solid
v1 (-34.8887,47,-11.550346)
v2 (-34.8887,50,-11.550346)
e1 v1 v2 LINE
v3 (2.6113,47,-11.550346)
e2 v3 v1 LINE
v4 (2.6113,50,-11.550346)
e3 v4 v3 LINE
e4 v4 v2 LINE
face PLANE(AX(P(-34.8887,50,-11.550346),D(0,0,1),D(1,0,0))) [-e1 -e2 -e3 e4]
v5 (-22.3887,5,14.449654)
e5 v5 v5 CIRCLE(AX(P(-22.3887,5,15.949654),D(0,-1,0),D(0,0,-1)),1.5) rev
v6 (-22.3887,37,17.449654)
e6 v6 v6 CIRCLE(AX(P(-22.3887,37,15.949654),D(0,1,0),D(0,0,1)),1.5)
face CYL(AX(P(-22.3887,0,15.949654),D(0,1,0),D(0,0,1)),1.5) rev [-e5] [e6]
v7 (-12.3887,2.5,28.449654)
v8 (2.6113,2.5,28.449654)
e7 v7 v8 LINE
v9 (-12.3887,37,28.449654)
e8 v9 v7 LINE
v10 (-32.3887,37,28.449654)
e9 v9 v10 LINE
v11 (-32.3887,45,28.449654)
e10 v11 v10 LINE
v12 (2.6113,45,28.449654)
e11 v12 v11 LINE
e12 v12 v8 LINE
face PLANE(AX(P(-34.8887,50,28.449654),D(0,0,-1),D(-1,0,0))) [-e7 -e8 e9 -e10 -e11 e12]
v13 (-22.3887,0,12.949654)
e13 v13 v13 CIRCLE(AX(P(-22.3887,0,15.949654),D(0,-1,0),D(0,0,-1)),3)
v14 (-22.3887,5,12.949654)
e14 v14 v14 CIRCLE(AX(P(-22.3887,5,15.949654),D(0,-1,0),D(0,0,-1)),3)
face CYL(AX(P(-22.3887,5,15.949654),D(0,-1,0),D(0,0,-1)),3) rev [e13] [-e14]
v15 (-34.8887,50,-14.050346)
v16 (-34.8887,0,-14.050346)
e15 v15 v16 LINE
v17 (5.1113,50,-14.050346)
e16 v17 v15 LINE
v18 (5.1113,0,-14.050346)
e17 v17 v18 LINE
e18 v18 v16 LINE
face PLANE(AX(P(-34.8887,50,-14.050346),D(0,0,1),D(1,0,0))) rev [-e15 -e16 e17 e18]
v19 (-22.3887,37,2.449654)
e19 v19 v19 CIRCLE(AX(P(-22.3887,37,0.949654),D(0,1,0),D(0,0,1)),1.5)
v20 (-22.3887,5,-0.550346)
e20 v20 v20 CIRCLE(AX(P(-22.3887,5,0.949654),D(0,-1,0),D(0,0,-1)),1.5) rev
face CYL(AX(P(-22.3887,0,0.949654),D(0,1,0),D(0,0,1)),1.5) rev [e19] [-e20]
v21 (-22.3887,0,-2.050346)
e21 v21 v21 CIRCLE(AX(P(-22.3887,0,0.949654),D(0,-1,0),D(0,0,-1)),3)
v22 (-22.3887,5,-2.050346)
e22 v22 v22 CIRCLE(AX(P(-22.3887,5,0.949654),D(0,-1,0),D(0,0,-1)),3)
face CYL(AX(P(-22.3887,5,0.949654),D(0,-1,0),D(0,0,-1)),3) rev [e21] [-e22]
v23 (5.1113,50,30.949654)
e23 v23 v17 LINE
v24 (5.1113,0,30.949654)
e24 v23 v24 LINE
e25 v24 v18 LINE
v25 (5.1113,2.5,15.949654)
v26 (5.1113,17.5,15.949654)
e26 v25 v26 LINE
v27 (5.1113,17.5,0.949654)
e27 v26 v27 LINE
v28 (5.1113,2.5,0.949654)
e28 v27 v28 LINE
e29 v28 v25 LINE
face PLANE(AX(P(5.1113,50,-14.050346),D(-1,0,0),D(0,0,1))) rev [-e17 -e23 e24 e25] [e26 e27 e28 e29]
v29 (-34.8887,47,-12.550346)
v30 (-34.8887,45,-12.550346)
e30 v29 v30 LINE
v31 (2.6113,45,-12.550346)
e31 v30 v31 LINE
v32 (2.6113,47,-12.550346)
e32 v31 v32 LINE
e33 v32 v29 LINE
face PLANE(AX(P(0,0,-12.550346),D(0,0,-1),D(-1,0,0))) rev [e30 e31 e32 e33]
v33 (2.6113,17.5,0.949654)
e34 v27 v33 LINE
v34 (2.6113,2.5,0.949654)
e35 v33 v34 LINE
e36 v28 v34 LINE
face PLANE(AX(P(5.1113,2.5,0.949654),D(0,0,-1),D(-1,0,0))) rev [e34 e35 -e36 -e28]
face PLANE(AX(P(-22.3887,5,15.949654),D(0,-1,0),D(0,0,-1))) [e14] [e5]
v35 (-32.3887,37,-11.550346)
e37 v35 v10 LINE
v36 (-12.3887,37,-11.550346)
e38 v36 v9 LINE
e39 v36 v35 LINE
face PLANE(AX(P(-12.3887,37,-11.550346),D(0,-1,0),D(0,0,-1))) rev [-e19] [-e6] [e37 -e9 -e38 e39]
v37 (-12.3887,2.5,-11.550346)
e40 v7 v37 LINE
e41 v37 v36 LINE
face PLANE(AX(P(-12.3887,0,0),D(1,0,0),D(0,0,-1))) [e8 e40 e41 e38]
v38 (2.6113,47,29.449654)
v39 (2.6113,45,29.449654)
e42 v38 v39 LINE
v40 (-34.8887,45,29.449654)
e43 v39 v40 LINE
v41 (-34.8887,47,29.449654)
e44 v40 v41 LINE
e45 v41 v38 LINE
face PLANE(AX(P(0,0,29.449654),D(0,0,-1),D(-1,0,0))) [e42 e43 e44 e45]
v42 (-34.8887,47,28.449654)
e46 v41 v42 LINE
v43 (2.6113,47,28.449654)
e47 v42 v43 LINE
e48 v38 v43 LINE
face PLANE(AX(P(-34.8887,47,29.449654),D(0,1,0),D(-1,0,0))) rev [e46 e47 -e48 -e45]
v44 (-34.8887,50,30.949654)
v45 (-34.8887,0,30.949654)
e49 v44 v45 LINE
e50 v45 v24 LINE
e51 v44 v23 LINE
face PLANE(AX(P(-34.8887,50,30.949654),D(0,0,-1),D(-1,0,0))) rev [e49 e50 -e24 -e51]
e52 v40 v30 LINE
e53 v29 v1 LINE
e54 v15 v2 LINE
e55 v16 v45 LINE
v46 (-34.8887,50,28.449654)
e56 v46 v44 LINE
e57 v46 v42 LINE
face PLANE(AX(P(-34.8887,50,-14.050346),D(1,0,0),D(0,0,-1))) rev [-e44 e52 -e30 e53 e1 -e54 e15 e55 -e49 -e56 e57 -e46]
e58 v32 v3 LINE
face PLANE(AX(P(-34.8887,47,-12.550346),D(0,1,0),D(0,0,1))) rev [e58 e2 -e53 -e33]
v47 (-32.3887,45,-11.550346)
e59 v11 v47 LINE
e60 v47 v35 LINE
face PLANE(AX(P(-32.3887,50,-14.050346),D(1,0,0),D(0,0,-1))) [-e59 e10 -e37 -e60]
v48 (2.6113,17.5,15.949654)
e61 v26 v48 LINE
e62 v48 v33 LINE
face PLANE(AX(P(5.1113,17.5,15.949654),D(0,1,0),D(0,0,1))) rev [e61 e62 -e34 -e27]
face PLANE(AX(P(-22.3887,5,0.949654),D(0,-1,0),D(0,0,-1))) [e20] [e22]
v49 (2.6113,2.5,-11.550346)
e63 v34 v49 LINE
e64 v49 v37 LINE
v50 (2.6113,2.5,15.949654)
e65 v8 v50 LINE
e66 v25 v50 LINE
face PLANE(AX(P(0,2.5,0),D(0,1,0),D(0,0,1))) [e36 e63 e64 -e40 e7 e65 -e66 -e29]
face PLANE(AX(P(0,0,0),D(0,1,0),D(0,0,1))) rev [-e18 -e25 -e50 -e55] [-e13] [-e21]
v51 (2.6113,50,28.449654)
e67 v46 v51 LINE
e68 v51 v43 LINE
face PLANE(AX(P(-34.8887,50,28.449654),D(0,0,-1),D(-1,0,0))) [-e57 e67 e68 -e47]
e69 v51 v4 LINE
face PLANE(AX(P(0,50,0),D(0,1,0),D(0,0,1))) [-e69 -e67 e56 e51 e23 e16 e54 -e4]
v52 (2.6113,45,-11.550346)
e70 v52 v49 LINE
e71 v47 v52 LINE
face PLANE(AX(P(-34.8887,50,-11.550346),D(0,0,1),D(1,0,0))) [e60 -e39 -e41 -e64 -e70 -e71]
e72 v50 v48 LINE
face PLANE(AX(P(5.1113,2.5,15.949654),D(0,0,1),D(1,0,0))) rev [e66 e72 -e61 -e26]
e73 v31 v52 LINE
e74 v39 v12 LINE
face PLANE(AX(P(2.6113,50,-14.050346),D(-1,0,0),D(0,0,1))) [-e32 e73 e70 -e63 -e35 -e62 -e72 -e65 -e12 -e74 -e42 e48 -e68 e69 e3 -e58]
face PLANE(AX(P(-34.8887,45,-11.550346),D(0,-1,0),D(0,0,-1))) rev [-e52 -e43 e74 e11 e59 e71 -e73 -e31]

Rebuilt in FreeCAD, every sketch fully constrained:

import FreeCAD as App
import Part
import Sketcher

V = App.Vector
Q = App.Units.Quantity


def faces_at(feature, points):
    """Names of the faces that lie closest to the given points."""
    faces = feature.Shape.Faces
    near = lambda p: min(range(len(faces)), key=lambda i: faces[i].distToShape(Part.Vertex(*p))[0])
    return sorted({f"Face{near(p) + 1}" for p in points})

doc = App.newDocument("Part")
body = doc.addObject("PartDesign::Body", "Body")

sketch1 = body.newObject("Sketcher::SketchObject", "Sketch")
sketch1.AttachmentSupport = (doc.getObject("XZ_Plane"), [""])
sketch1.MapMode = "FlatFace"
sketch1.addGeometry(Part.LineSegment(V(-35, -14, 0), V(-35, 31, 0)), False)
sketch1.addGeometry(Part.LineSegment(V(-35, 31, 0), V(5, 31, 0)), False)
sketch1.addGeometry(Part.LineSegment(V(5, 31, 0), V(5, -14, 0)), False)
sketch1.addGeometry(Part.LineSegment(V(5, -14, 0), V(-35, -14, 0)), False)
sketch1.addConstraint(Sketcher.Constraint("Coincident", 0, 2, 1, 1))
sketch1.addConstraint(Sketcher.Constraint("Coincident", 1, 2, 2, 1))
sketch1.addConstraint(Sketcher.Constraint("Coincident", 2, 2, 3, 1))
sketch1.addConstraint(Sketcher.Constraint("Coincident", 3, 2, 0, 1))
sketch1.addConstraint(Sketcher.Constraint("Vertical", 0))
sketch1.addConstraint(Sketcher.Constraint("Horizontal", 1))
sketch1.addConstraint(Sketcher.Constraint("Vertical", 2))
sketch1.addConstraint(Sketcher.Constraint("Horizontal", 3))
sketch1.addConstraint(Sketcher.Constraint("DistanceX", 1, 1, 1, 2, Q("40 mm")))
sketch1.addConstraint(Sketcher.Constraint("DistanceY", 0, 1, 0, 2, Q("45 mm")))
sketch1.addConstraint(Sketcher.Constraint("DistanceX", 0, 2, -1, 1, Q("34.8887 mm")))
sketch1.addConstraint(Sketcher.Constraint("DistanceY", -1, 1, 0, 2, Q("30.949654 mm")))
pad1 = body.newObject("PartDesign::Pad", "Pad")
pad1.Profile = sketch1
pad1.Length = 50
pad1.Reversed = True
doc.recompute()

thickness = body.newObject("PartDesign::Thickness", "Thickness")
thickness.Base = (pad1, faces_at(pad1, [(-14.889, 50, 8.45)]))
thickness.Value = 2.5
thickness.Reversed = True
thickness.Join = "Intersection"

sketch2 = body.newObject("Sketcher::SketchObject", "Sketch001")
sketch2.AttachmentSupport = (doc.getObject("YZ_Plane"), [""])
sketch2.MapMode = "FlatFace"
sketch2.AttachmentOffset = App.Placement(V(0, 0, -32.3887), App.Rotation())
sketch2.addGeometry(Part.LineSegment(V(37, 28, 0), V(2, 28, 0)), False)
sketch2.addGeometry(Part.LineSegment(V(2, 28, 0), V(2, -12, 0)), False)
sketch2.addGeometry(Part.LineSegment(V(2, -12, 0), V(37, -12, 0)), False)
sketch2.addGeometry(Part.LineSegment(V(37, -12, 0), V(37, 28, 0)), False)
sketch2.addConstraint(Sketcher.Constraint("Coincident", 0, 2, 1, 1))
sketch2.addConstraint(Sketcher.Constraint("Coincident", 1, 2, 2, 1))
sketch2.addConstraint(Sketcher.Constraint("Coincident", 2, 2, 3, 1))
sketch2.addConstraint(Sketcher.Constraint("Coincident", 3, 2, 0, 1))
sketch2.addConstraint(Sketcher.Constraint("Horizontal", 0))
sketch2.addConstraint(Sketcher.Constraint("Vertical", 1))
sketch2.addConstraint(Sketcher.Constraint("Horizontal", 2))
sketch2.addConstraint(Sketcher.Constraint("Vertical", 3))
sketch2.addConstraint(Sketcher.Constraint("DistanceY", 1, 2, 1, 1, Q("40 mm")))
sketch2.addConstraint(Sketcher.Constraint("DistanceX", 0, 2, 0, 1, Q("34.5 mm")))
sketch2.addConstraint(Sketcher.Constraint("DistanceX", -1, 1, 2, 2, Q("37 mm")))
sketch2.addConstraint(Sketcher.Constraint("DistanceY", -1, 1, 0, 2, Q("28.449654 mm")))
pad2 = body.newObject("PartDesign::Pad", "Pad001")
pad2.Profile = sketch2
pad2.Length = 20

sketch3 = body.newObject("Sketcher::SketchObject", "Sketch002")
sketch3.AttachmentSupport = (doc.getObject("YZ_Plane"), [""])
sketch3.MapMode = "FlatFace"
sketch3.AttachmentOffset = App.Placement(V(0, 0, -32.3887), App.Rotation())
sketch3.addGeometry(Part.LineSegment(V(50, 28, 0), V(45, 28, 0)), False)
sketch3.addGeometry(Part.LineSegment(V(45, 28, 0), V(45, -12, 0)), False)
sketch3.addGeometry(Part.LineSegment(V(45, -12, 0), V(50, -12, 0)), False)
sketch3.addGeometry(Part.LineSegment(V(50, -12, 0), V(50, 28, 0)), False)
sketch3.addConstraint(Sketcher.Constraint("Coincident", 0, 2, 1, 1))
sketch3.addConstraint(Sketcher.Constraint("Coincident", 1, 2, 2, 1))
sketch3.addConstraint(Sketcher.Constraint("Coincident", 2, 2, 3, 1))
sketch3.addConstraint(Sketcher.Constraint("Coincident", 3, 2, 0, 1))
sketch3.addConstraint(Sketcher.Constraint("Horizontal", 0))
sketch3.addConstraint(Sketcher.Constraint("Vertical", 1))
sketch3.addConstraint(Sketcher.Constraint("Horizontal", 2))
sketch3.addConstraint(Sketcher.Constraint("Vertical", 3))
sketch3.addConstraint(Sketcher.Constraint("DistanceX", 0, 2, 0, 1, Q("5 mm")))
sketch3.addConstraint(Sketcher.Constraint("DistanceY", 1, 2, 1, 1, Q("40 mm")))
sketch3.addConstraint(Sketcher.Constraint("DistanceX", -1, 1, 0, 2, Q("45 mm")))
sketch3.addConstraint(Sketcher.Constraint("DistanceY", -1, 1, 0, 2, Q("28.449654 mm")))
pocket1 = body.newObject("PartDesign::Pocket", "Pocket")
pocket1.Profile = sketch3
pocket1.Length = 2.5

sketch4 = body.newObject("Sketcher::SketchObject", "Sketch003")
sketch4.AttachmentSupport = (doc.getObject("XY_Plane"), [""])
sketch4.MapMode = "FlatFace"
sketch4.AttachmentOffset = App.Placement(V(0, 0, -11.550346), App.Rotation())
sketch4.addGeometry(Part.LineSegment(V(-34.9, 47, 0), V(-34.9, 45, 0)), False)
sketch4.addGeometry(Part.LineSegment(V(-34.9, 45, 0), V(2.6, 45, 0)), False)
sketch4.addGeometry(Part.LineSegment(V(2.6, 45, 0), V(2.6, 47, 0)), False)
sketch4.addGeometry(Part.LineSegment(V(2.6, 47, 0), V(-34.9, 47, 0)), False)
sketch4.addConstraint(Sketcher.Constraint("Coincident", 0, 2, 1, 1))
sketch4.addConstraint(Sketcher.Constraint("Coincident", 1, 2, 2, 1))
sketch4.addConstraint(Sketcher.Constraint("Coincident", 2, 2, 3, 1))
sketch4.addConstraint(Sketcher.Constraint("Coincident", 3, 2, 0, 1))
sketch4.addConstraint(Sketcher.Constraint("Vertical", 0))
sketch4.addConstraint(Sketcher.Constraint("Horizontal", 1))
sketch4.addConstraint(Sketcher.Constraint("Vertical", 2))
sketch4.addConstraint(Sketcher.Constraint("Horizontal", 3))
sketch4.addConstraint(Sketcher.Constraint("DistanceY", 0, 2, 0, 1, Q("2 mm")))
sketch4.addConstraint(Sketcher.Constraint("DistanceX", 1, 1, 1, 2, Q("37.5 mm")))
sketch4.addConstraint(Sketcher.Constraint("DistanceY", -1, 1, 0, 2, Q("45 mm")))
sketch4.addConstraint(Sketcher.Constraint("DistanceX", 0, 2, -1, 1, Q("34.8887 mm")))
pocket2 = body.newObject("PartDesign::Pocket", "Pocket001")
pocket2.Profile = sketch4
pocket2.Length = 1

sketch5 = body.newObject("Sketcher::SketchObject", "Sketch004")
sketch5.AttachmentSupport = (doc.getObject("XY_Plane"), [""])
sketch5.MapMode = "FlatFace"
sketch5.AttachmentOffset = App.Placement(V(0, 0, 28.449654), App.Rotation())
sketch5.addGeometry(Part.LineSegment(V(2.6, 47, 0), V(2.6, 45, 0)), False)
sketch5.addGeometry(Part.LineSegment(V(2.6, 45, 0), V(-34.9, 45, 0)), False)
sketch5.addGeometry(Part.LineSegment(V(-34.9, 45, 0), V(-34.9, 47, 0)), False)
sketch5.addGeometry(Part.LineSegment(V(-34.9, 47, 0), V(2.6, 47, 0)), False)
sketch5.addConstraint(Sketcher.Constraint("Coincident", 0, 2, 1, 1))
sketch5.addConstraint(Sketcher.Constraint("Coincident", 1, 2, 2, 1))
sketch5.addConstraint(Sketcher.Constraint("Coincident", 2, 2, 3, 1))
sketch5.addConstraint(Sketcher.Constraint("Coincident", 3, 2, 0, 1))
sketch5.addConstraint(Sketcher.Constraint("Vertical", 0))
sketch5.addConstraint(Sketcher.Constraint("Horizontal", 1))
sketch5.addConstraint(Sketcher.Constraint("Vertical", 2))
sketch5.addConstraint(Sketcher.Constraint("Horizontal", 3))
sketch5.addConstraint(Sketcher.Constraint("DistanceY", 0, 2, 0, 1, Q("2 mm")))
sketch5.addConstraint(Sketcher.Constraint("DistanceX", 1, 2, 1, 1, Q("37.5 mm")))
sketch5.addConstraint(Sketcher.Constraint("DistanceY", -1, 1, 0, 2, Q("45 mm")))
sketch5.addConstraint(Sketcher.Constraint("DistanceX", -1, 1, 0, 2, Q("2.6113 mm")))
pocket3 = body.newObject("PartDesign::Pocket", "Pocket002")
pocket3.Profile = sketch5
pocket3.Length = 1
pocket3.Reversed = True

sketch6 = body.newObject("Sketcher::SketchObject", "Sketch005")
sketch6.AttachmentSupport = (doc.getObject("XZ_Plane"), [""])
sketch6.MapMode = "FlatFace"
sketch6.AttachmentOffset = App.Placement(V(0, 0, -37), App.Rotation())
sketch6.addGeometry(Part.Circle(V(-22.4, 15.9, 0), V(0, 0, 1), 1.5), False)
sketch6.addConstraint(Sketcher.Constraint("Diameter", 0, Q("3 mm")))
sketch6.addConstraint(Sketcher.Constraint("DistanceX", 0, 3, -1, 1, Q("22.3887 mm")))
sketch6.addConstraint(Sketcher.Constraint("DistanceY", -1, 1, 0, 3, Q("15.949654 mm")))
pocket4 = body.newObject("PartDesign::Pocket", "Pocket003")
pocket4.Profile = sketch6
pocket4.Length = 37
pocket4.Reversed = True

sketch7 = body.newObject("Sketcher::SketchObject", "Sketch006")
sketch7.AttachmentSupport = (doc.getObject("XZ_Plane"), [""])
sketch7.MapMode = "FlatFace"
sketch7.AttachmentOffset = App.Placement(V(0, 0, -37), App.Rotation())
sketch7.addGeometry(Part.Circle(V(-22.4, 0.9, 0), V(0, 0, 1), 1.5), False)
sketch7.addConstraint(Sketcher.Constraint("Diameter", 0, Q("3 mm")))
sketch7.addConstraint(Sketcher.Constraint("DistanceX", 0, 3, -1, 1, Q("22.3887 mm")))
sketch7.addConstraint(Sketcher.Constraint("DistanceY", -1, 1, 0, 3, Q("0.949654 mm")))
pocket5 = body.newObject("PartDesign::Pocket", "Pocket004")
pocket5.Profile = sketch7
pocket5.Length = 37
pocket5.Reversed = True

sketch8 = body.newObject("Sketcher::SketchObject", "Sketch007")
sketch8.AttachmentSupport = (doc.getObject("XZ_Plane"), [""])
sketch8.MapMode = "FlatFace"
sketch8.addGeometry(Part.Circle(V(-22.4, 15.9, 0), V(0, 0, 1), 3), False)
sketch8.addGeometry(Part.Circle(V(-22.4, 0.9, 0), V(0, 0, 1), 3), False)
sketch8.addConstraint(Sketcher.Constraint("Equal", 0, 1))
sketch8.addConstraint(Sketcher.Constraint("Vertical", 0, 3, 1, 3))
sketch8.addConstraint(Sketcher.Constraint("Diameter", 0, Q("6 mm")))
sketch8.addConstraint(Sketcher.Constraint("DistanceY", 1, 3, 0, 3, Q("15 mm")))
sketch8.addConstraint(Sketcher.Constraint("DistanceX", 0, 3, -1, 1, Q("22.3887 mm")))
sketch8.addConstraint(Sketcher.Constraint("DistanceY", -1, 1, 0, 3, Q("15.949654 mm")))
pocket6 = body.newObject("PartDesign::Pocket", "Pocket005")
pocket6.Profile = sketch8
pocket6.Length = 5

sketch9 = body.newObject("Sketcher::SketchObject", "Sketch008")
sketch9.AttachmentSupport = (doc.getObject("YZ_Plane"), [""])
sketch9.MapMode = "FlatFace"
sketch9.AttachmentOffset = App.Placement(V(0, 0, 2.6113), App.Rotation())
sketch9.addGeometry(Part.LineSegment(V(18, 1, 0), V(2, 1, 0)), False)
sketch9.addGeometry(Part.LineSegment(V(2, 1, 0), V(2, 16, 0)), False)
sketch9.addGeometry(Part.LineSegment(V(2, 16, 0), V(18, 16, 0)), False)
sketch9.addGeometry(Part.LineSegment(V(18, 16, 0), V(18, 1, 0)), False)
sketch9.addConstraint(Sketcher.Constraint("Coincident", 0, 2, 1, 1))
sketch9.addConstraint(Sketcher.Constraint("Coincident", 1, 2, 2, 1))
sketch9.addConstraint(Sketcher.Constraint("Coincident", 2, 2, 3, 1))
sketch9.addConstraint(Sketcher.Constraint("Coincident", 3, 2, 0, 1))
sketch9.addConstraint(Sketcher.Constraint("Horizontal", 0))
sketch9.addConstraint(Sketcher.Constraint("Vertical", 1))
sketch9.addConstraint(Sketcher.Constraint("Horizontal", 2))
sketch9.addConstraint(Sketcher.Constraint("Vertical", 3))
sketch9.addConstraint(Sketcher.Constraint("Equal", 2, 1))
sketch9.addConstraint(Sketcher.Constraint("DistanceX", 0, 2, 0, 1, Q("15 mm")))
sketch9.addConstraint(Sketcher.Constraint("DistanceX", -1, 1, 0, 2, Q("2.5 mm")))
sketch9.addConstraint(Sketcher.Constraint("DistanceY", -1, 1, 0, 2, Q("0.949654 mm")))
pocket7 = body.newObject("PartDesign::Pocket", "Pocket006")
pocket7.Profile = sketch9
pocket7.Length = 2.5
pocket7.Reversed = True

doc.recompute()
